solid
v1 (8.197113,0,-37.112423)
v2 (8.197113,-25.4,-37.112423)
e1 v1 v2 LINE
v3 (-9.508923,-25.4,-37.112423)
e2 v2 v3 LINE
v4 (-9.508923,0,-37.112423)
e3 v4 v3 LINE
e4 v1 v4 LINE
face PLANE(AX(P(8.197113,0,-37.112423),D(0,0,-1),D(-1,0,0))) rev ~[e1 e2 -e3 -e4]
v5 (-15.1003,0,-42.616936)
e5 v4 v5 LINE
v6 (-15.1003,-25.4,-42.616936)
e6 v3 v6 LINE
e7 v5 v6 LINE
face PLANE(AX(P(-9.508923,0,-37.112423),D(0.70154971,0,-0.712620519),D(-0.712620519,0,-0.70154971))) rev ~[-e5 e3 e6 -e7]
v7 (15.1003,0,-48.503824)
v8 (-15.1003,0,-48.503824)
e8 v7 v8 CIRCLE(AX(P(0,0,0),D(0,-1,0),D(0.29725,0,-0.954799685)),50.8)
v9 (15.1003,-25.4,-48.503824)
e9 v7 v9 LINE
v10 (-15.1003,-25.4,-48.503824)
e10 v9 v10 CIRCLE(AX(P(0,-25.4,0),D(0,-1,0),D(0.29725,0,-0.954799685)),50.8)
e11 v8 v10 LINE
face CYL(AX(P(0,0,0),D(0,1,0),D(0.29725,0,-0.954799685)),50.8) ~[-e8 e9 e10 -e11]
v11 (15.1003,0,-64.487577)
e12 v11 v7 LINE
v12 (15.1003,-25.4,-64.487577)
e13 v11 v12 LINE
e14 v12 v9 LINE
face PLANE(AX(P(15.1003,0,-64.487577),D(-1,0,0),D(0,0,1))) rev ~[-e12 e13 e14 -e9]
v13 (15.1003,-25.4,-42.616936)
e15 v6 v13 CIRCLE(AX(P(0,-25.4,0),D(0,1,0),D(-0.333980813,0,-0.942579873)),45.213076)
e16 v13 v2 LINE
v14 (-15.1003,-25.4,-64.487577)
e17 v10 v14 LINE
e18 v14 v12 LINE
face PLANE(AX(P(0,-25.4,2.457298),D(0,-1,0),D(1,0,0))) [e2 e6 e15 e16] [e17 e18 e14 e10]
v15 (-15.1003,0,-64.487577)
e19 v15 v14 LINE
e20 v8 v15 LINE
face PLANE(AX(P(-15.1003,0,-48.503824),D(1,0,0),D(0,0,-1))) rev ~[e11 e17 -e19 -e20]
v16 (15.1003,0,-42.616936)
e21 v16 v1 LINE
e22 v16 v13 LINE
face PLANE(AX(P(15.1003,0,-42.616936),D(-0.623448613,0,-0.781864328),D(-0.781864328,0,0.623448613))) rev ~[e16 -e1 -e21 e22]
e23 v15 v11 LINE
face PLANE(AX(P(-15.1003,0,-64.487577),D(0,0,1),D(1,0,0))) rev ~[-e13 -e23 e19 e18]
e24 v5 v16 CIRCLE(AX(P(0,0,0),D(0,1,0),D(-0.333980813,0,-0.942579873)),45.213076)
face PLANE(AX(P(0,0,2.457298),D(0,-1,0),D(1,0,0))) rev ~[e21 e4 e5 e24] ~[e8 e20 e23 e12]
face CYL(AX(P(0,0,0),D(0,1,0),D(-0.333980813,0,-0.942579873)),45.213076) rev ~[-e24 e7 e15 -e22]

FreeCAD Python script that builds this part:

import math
import FreeCAD as App
import Part
import Sketcher
from FreeCAD import Vector
Q = App.Units.Quantity

doc = App.newDocument("Part")
body = doc.addObject("PartDesign::Body", "Body")

# Sketch on XZ plane
sketch1 = doc.addObject("Sketcher::SketchObject", "Sketch")
body.addObject(sketch1)
sketch1.AttachmentSupport = (doc.XZ_Plane, [""])
sketch1.MapMode = "FlatFace"
sketch1.addGeometry([
    Part.ArcOfCircle(Part.Circle(Vector(0, 0, 0), Vector(0, 0, 1), 51), math.radians(-73), math.radians(253)),  # 0
    Part.LineSegment(Vector(-15, -49, 0), Vector(-15, -64, 0)),  # 1
    Part.LineSegment(Vector(-15, -64, 0), Vector(15, -64, 0)),  # 2
    Part.LineSegment(Vector(15, -64, 0), Vector(15, -49, 0)),  # 3
    Part.ArcOfCircle(Part.Circle(Vector(0, 0, 0), Vector(0, 0, 1), 45), math.radians(-70), math.radians(250)),  # 4
    Part.LineSegment(Vector(15, -43, 0), Vector(8, -37, 0)),  # 5
    Part.LineSegment(Vector(8, -37, 0), Vector(-10, -37, 0)),  # 6
    Part.LineSegment(Vector(-10, -37, 0), Vector(-15, -43, 0)),  # 7
], False)
sketch1.addConstraint([
    Sketcher.Constraint("Coincident", 0, 2, 1, 1),
    Sketcher.Constraint("Coincident", 1, 2, 2, 1),
    Sketcher.Constraint("Coincident", 2, 2, 3, 1),
    Sketcher.Constraint("Coincident", 3, 2, 0, 1),
    Sketcher.Constraint("Coincident", 4, 1, 5, 1),
    Sketcher.Constraint("Coincident", 5, 2, 6, 1),
    Sketcher.Constraint("Coincident", 6, 2, 7, 1),
    Sketcher.Constraint("Coincident", 7, 2, 4, 2),
    Sketcher.Constraint("Vertical", 1),
    Sketcher.Constraint("Horizontal", 2),
    Sketcher.Constraint("Vertical", 3),
    Sketcher.Constraint("Horizontal", 6),
    Sketcher.Constraint("Coincident", 0, 3, -1, 1),
    Sketcher.Constraint("Coincident", 4, 3, -1, 1),
    Sketcher.Constraint("Horizontal", 0, 2, 3, 2),
    Sketcher.Constraint("Horizontal", 4, 1, 7, 2),
    Sketcher.Constraint("Vertical", 3, 2, 4, 1),
    Sketcher.Constraint("Radius", 0, Q("2 in")),
    Sketcher.Constraint("DistanceX", 2, 1, 2, 2, Q("1.189 in")),
    Sketcher.Constraint("Radius", 4, 45.213076),
    Sketcher.Constraint("DistanceY", 3, 2, 5, 2, 11.391401),
    Sketcher.Constraint("Distance", 7, 7.846219),
    Sketcher.Constraint("DistanceX", 6, 2, 6, 1, 17.706036),
    Sketcher.Constraint("DistanceY", 1, 2, 1, 1, 15.983753),
])
pad1 = doc.addObject("PartDesign::Pad", "Pad")
body.addObject(pad1)
pad1.Profile = sketch1
pad1.Length = Q("1 in")

doc.recompute()
